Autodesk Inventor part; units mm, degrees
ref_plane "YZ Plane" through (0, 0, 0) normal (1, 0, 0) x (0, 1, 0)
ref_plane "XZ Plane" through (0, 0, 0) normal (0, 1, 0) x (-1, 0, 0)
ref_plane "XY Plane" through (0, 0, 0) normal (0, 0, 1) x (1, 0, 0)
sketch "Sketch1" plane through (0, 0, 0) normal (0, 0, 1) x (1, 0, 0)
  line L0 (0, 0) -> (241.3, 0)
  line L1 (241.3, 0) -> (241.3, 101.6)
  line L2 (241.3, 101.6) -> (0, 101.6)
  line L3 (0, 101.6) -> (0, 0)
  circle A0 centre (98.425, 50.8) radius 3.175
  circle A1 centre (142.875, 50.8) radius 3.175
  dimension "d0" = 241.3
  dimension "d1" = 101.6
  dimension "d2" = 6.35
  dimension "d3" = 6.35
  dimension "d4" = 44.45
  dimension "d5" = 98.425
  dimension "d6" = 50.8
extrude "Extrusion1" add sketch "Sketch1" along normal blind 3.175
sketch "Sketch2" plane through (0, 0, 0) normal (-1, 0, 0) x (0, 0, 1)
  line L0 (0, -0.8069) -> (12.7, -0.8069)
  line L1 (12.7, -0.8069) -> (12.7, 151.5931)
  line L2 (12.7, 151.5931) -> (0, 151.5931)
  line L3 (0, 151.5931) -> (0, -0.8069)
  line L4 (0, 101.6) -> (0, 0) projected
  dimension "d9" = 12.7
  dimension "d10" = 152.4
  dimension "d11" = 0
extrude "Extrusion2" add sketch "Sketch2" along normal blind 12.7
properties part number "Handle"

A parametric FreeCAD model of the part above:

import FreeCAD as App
import Part
import Sketcher

V = App.Vector
Q = App.Units.Quantity


def add_polygon(sketch, points):
    """Adds a closed chain of lines whose ends are joined by coincident constraints."""
    first, n = sketch.GeometryCount, len(points)
    for a, b in zip(points, points[1:] + points[:1]):
        sketch.addGeometry(Part.LineSegment(App.Vector(*a, 0), App.Vector(*b, 0)), False)
    for i in range(n):
        sketch.addConstraint(Sketcher.Constraint("Coincident", first + i, 2, first + (i + 1) % n, 1))

doc = App.newDocument("Part")
params = doc.addObject("Spreadsheet::Sheet", "Params")
for row, (alias, value) in enumerate([
    ("sketch1_diameter", "0.25 in"),
    ("sketch1_height", "4 in"),
    ("sketch1_width", "9.5 in"),
    ("pad1_length", "0.125 in"),
    ("sketch2_width", "6 in"),
    ("sketch2_height", "0.5 in"),
    ("pad2_length", "0.5 in"),
], start=1):
    params.set(f"A{row}", alias)
    params.set(f"B{row}", "=" + value)
    params.setAlias(f"B{row}", alias)

body = doc.addObject("PartDesign::Body", "Body")

sketch1 = body.newObject("Sketcher::SketchObject", "Sketch")
sketch1.AttachmentSupport = (doc.getObject("XY_Plane"), [""])
sketch1.MapMode = "FlatFace"
add_polygon(sketch1, [(0, 101.6), (0, 0), (241.3, 0), (241.3, 101.6)])
sketch1.addGeometry(Part.Circle(V(98.4, 50.8, 0), V(0, 0, 1), 3.2), False)
sketch1.addGeometry(Part.Circle(V(142.9, 50.8, 0), V(0, 0, 1), 3.2), False)
sketch1.addConstraint(Sketcher.Constraint("Vertical", 0))
sketch1.addConstraint(Sketcher.Constraint("Horizontal", 1))
sketch1.addConstraint(Sketcher.Constraint("Vertical", 2))
sketch1.addConstraint(Sketcher.Constraint("Horizontal", 3))
sketch1.addConstraint(Sketcher.Constraint("Coincident", 0, 2, -1, 1))
sketch1.addConstraint(Sketcher.Constraint("Equal", 4, 5))
sketch1.addConstraint(Sketcher.Constraint("Horizontal", 4, 3, 5, 3))
sketch1.addConstraint(Sketcher.Constraint("Diameter", 4, Q("0.25 in")))
sketch1.addConstraint(Sketcher.Constraint("DistanceY", 0, 2, 0, 1, Q("4 in")))
sketch1.addConstraint(Sketcher.Constraint("DistanceX", 1, 1, 1, 2, Q("9.5 in")))
sketch1.addConstraint(Sketcher.Constraint("DistanceY", -1, 1, 4, 3, Q("2 in")))
sketch1.addConstraint(Sketcher.Constraint("DistanceX", 4, 3, 5, 3, Q("1.75 in")))
sketch1.addConstraint(Sketcher.Constraint("DistanceX", -1, 1, 4, 3, Q("3.875 in")))
sketch1.setExpression("Constraints[11]", "Params.sketch1_diameter")
sketch1.setExpression("Constraints[12]", "Params.sketch1_height")
sketch1.setExpression("Constraints[13]", "Params.sketch1_width")
pad1 = body.newObject("PartDesign::Pad", "Pad")
pad1.Profile = sketch1
pad1.setExpression("Length", "Params.pad1_length")

sketch2 = body.newObject("Sketcher::SketchObject", "Sketch001")
sketch2.AttachmentSupport = (doc.getObject("YZ_Plane"), [""])
sketch2.MapMode = "FlatFace"
add_polygon(sketch2, [(152, 0), (-1, 0), (-1, 13), (152, 13)])
sketch2.addConstraint(Sketcher.Constraint("Horizontal", 0))
sketch2.addConstraint(Sketcher.Constraint("Vertical", 1))
sketch2.addConstraint(Sketcher.Constraint("Horizontal", 2))
sketch2.addConstraint(Sketcher.Constraint("Vertical", 3))
sketch2.addConstraint(Sketcher.Constraint("PointOnObject", 0, 2, -1))
sketch2.addConstraint(Sketcher.Constraint("DistanceX", 0, 2, 0, 1, Q("6 in")))
sketch2.addConstraint(Sketcher.Constraint("DistanceY", 1, 1, 1, 2, Q("0.5 in")))
sketch2.addConstraint(Sketcher.Constraint("DistanceX", 0, 2, -1, 1, Q("0.807 mm")))
sketch2.setExpression("Constraints[9]", "Params.sketch2_width")
sketch2.setExpression("Constraints[10]", "Params.sketch2_height")
pad2 = body.newObject("PartDesign::Pad", "Pad001")
pad2.Profile = sketch2
pad2.setExpression("Length", "Params.pad2_length")
pad2.Reversed = True

doc.recompute()
